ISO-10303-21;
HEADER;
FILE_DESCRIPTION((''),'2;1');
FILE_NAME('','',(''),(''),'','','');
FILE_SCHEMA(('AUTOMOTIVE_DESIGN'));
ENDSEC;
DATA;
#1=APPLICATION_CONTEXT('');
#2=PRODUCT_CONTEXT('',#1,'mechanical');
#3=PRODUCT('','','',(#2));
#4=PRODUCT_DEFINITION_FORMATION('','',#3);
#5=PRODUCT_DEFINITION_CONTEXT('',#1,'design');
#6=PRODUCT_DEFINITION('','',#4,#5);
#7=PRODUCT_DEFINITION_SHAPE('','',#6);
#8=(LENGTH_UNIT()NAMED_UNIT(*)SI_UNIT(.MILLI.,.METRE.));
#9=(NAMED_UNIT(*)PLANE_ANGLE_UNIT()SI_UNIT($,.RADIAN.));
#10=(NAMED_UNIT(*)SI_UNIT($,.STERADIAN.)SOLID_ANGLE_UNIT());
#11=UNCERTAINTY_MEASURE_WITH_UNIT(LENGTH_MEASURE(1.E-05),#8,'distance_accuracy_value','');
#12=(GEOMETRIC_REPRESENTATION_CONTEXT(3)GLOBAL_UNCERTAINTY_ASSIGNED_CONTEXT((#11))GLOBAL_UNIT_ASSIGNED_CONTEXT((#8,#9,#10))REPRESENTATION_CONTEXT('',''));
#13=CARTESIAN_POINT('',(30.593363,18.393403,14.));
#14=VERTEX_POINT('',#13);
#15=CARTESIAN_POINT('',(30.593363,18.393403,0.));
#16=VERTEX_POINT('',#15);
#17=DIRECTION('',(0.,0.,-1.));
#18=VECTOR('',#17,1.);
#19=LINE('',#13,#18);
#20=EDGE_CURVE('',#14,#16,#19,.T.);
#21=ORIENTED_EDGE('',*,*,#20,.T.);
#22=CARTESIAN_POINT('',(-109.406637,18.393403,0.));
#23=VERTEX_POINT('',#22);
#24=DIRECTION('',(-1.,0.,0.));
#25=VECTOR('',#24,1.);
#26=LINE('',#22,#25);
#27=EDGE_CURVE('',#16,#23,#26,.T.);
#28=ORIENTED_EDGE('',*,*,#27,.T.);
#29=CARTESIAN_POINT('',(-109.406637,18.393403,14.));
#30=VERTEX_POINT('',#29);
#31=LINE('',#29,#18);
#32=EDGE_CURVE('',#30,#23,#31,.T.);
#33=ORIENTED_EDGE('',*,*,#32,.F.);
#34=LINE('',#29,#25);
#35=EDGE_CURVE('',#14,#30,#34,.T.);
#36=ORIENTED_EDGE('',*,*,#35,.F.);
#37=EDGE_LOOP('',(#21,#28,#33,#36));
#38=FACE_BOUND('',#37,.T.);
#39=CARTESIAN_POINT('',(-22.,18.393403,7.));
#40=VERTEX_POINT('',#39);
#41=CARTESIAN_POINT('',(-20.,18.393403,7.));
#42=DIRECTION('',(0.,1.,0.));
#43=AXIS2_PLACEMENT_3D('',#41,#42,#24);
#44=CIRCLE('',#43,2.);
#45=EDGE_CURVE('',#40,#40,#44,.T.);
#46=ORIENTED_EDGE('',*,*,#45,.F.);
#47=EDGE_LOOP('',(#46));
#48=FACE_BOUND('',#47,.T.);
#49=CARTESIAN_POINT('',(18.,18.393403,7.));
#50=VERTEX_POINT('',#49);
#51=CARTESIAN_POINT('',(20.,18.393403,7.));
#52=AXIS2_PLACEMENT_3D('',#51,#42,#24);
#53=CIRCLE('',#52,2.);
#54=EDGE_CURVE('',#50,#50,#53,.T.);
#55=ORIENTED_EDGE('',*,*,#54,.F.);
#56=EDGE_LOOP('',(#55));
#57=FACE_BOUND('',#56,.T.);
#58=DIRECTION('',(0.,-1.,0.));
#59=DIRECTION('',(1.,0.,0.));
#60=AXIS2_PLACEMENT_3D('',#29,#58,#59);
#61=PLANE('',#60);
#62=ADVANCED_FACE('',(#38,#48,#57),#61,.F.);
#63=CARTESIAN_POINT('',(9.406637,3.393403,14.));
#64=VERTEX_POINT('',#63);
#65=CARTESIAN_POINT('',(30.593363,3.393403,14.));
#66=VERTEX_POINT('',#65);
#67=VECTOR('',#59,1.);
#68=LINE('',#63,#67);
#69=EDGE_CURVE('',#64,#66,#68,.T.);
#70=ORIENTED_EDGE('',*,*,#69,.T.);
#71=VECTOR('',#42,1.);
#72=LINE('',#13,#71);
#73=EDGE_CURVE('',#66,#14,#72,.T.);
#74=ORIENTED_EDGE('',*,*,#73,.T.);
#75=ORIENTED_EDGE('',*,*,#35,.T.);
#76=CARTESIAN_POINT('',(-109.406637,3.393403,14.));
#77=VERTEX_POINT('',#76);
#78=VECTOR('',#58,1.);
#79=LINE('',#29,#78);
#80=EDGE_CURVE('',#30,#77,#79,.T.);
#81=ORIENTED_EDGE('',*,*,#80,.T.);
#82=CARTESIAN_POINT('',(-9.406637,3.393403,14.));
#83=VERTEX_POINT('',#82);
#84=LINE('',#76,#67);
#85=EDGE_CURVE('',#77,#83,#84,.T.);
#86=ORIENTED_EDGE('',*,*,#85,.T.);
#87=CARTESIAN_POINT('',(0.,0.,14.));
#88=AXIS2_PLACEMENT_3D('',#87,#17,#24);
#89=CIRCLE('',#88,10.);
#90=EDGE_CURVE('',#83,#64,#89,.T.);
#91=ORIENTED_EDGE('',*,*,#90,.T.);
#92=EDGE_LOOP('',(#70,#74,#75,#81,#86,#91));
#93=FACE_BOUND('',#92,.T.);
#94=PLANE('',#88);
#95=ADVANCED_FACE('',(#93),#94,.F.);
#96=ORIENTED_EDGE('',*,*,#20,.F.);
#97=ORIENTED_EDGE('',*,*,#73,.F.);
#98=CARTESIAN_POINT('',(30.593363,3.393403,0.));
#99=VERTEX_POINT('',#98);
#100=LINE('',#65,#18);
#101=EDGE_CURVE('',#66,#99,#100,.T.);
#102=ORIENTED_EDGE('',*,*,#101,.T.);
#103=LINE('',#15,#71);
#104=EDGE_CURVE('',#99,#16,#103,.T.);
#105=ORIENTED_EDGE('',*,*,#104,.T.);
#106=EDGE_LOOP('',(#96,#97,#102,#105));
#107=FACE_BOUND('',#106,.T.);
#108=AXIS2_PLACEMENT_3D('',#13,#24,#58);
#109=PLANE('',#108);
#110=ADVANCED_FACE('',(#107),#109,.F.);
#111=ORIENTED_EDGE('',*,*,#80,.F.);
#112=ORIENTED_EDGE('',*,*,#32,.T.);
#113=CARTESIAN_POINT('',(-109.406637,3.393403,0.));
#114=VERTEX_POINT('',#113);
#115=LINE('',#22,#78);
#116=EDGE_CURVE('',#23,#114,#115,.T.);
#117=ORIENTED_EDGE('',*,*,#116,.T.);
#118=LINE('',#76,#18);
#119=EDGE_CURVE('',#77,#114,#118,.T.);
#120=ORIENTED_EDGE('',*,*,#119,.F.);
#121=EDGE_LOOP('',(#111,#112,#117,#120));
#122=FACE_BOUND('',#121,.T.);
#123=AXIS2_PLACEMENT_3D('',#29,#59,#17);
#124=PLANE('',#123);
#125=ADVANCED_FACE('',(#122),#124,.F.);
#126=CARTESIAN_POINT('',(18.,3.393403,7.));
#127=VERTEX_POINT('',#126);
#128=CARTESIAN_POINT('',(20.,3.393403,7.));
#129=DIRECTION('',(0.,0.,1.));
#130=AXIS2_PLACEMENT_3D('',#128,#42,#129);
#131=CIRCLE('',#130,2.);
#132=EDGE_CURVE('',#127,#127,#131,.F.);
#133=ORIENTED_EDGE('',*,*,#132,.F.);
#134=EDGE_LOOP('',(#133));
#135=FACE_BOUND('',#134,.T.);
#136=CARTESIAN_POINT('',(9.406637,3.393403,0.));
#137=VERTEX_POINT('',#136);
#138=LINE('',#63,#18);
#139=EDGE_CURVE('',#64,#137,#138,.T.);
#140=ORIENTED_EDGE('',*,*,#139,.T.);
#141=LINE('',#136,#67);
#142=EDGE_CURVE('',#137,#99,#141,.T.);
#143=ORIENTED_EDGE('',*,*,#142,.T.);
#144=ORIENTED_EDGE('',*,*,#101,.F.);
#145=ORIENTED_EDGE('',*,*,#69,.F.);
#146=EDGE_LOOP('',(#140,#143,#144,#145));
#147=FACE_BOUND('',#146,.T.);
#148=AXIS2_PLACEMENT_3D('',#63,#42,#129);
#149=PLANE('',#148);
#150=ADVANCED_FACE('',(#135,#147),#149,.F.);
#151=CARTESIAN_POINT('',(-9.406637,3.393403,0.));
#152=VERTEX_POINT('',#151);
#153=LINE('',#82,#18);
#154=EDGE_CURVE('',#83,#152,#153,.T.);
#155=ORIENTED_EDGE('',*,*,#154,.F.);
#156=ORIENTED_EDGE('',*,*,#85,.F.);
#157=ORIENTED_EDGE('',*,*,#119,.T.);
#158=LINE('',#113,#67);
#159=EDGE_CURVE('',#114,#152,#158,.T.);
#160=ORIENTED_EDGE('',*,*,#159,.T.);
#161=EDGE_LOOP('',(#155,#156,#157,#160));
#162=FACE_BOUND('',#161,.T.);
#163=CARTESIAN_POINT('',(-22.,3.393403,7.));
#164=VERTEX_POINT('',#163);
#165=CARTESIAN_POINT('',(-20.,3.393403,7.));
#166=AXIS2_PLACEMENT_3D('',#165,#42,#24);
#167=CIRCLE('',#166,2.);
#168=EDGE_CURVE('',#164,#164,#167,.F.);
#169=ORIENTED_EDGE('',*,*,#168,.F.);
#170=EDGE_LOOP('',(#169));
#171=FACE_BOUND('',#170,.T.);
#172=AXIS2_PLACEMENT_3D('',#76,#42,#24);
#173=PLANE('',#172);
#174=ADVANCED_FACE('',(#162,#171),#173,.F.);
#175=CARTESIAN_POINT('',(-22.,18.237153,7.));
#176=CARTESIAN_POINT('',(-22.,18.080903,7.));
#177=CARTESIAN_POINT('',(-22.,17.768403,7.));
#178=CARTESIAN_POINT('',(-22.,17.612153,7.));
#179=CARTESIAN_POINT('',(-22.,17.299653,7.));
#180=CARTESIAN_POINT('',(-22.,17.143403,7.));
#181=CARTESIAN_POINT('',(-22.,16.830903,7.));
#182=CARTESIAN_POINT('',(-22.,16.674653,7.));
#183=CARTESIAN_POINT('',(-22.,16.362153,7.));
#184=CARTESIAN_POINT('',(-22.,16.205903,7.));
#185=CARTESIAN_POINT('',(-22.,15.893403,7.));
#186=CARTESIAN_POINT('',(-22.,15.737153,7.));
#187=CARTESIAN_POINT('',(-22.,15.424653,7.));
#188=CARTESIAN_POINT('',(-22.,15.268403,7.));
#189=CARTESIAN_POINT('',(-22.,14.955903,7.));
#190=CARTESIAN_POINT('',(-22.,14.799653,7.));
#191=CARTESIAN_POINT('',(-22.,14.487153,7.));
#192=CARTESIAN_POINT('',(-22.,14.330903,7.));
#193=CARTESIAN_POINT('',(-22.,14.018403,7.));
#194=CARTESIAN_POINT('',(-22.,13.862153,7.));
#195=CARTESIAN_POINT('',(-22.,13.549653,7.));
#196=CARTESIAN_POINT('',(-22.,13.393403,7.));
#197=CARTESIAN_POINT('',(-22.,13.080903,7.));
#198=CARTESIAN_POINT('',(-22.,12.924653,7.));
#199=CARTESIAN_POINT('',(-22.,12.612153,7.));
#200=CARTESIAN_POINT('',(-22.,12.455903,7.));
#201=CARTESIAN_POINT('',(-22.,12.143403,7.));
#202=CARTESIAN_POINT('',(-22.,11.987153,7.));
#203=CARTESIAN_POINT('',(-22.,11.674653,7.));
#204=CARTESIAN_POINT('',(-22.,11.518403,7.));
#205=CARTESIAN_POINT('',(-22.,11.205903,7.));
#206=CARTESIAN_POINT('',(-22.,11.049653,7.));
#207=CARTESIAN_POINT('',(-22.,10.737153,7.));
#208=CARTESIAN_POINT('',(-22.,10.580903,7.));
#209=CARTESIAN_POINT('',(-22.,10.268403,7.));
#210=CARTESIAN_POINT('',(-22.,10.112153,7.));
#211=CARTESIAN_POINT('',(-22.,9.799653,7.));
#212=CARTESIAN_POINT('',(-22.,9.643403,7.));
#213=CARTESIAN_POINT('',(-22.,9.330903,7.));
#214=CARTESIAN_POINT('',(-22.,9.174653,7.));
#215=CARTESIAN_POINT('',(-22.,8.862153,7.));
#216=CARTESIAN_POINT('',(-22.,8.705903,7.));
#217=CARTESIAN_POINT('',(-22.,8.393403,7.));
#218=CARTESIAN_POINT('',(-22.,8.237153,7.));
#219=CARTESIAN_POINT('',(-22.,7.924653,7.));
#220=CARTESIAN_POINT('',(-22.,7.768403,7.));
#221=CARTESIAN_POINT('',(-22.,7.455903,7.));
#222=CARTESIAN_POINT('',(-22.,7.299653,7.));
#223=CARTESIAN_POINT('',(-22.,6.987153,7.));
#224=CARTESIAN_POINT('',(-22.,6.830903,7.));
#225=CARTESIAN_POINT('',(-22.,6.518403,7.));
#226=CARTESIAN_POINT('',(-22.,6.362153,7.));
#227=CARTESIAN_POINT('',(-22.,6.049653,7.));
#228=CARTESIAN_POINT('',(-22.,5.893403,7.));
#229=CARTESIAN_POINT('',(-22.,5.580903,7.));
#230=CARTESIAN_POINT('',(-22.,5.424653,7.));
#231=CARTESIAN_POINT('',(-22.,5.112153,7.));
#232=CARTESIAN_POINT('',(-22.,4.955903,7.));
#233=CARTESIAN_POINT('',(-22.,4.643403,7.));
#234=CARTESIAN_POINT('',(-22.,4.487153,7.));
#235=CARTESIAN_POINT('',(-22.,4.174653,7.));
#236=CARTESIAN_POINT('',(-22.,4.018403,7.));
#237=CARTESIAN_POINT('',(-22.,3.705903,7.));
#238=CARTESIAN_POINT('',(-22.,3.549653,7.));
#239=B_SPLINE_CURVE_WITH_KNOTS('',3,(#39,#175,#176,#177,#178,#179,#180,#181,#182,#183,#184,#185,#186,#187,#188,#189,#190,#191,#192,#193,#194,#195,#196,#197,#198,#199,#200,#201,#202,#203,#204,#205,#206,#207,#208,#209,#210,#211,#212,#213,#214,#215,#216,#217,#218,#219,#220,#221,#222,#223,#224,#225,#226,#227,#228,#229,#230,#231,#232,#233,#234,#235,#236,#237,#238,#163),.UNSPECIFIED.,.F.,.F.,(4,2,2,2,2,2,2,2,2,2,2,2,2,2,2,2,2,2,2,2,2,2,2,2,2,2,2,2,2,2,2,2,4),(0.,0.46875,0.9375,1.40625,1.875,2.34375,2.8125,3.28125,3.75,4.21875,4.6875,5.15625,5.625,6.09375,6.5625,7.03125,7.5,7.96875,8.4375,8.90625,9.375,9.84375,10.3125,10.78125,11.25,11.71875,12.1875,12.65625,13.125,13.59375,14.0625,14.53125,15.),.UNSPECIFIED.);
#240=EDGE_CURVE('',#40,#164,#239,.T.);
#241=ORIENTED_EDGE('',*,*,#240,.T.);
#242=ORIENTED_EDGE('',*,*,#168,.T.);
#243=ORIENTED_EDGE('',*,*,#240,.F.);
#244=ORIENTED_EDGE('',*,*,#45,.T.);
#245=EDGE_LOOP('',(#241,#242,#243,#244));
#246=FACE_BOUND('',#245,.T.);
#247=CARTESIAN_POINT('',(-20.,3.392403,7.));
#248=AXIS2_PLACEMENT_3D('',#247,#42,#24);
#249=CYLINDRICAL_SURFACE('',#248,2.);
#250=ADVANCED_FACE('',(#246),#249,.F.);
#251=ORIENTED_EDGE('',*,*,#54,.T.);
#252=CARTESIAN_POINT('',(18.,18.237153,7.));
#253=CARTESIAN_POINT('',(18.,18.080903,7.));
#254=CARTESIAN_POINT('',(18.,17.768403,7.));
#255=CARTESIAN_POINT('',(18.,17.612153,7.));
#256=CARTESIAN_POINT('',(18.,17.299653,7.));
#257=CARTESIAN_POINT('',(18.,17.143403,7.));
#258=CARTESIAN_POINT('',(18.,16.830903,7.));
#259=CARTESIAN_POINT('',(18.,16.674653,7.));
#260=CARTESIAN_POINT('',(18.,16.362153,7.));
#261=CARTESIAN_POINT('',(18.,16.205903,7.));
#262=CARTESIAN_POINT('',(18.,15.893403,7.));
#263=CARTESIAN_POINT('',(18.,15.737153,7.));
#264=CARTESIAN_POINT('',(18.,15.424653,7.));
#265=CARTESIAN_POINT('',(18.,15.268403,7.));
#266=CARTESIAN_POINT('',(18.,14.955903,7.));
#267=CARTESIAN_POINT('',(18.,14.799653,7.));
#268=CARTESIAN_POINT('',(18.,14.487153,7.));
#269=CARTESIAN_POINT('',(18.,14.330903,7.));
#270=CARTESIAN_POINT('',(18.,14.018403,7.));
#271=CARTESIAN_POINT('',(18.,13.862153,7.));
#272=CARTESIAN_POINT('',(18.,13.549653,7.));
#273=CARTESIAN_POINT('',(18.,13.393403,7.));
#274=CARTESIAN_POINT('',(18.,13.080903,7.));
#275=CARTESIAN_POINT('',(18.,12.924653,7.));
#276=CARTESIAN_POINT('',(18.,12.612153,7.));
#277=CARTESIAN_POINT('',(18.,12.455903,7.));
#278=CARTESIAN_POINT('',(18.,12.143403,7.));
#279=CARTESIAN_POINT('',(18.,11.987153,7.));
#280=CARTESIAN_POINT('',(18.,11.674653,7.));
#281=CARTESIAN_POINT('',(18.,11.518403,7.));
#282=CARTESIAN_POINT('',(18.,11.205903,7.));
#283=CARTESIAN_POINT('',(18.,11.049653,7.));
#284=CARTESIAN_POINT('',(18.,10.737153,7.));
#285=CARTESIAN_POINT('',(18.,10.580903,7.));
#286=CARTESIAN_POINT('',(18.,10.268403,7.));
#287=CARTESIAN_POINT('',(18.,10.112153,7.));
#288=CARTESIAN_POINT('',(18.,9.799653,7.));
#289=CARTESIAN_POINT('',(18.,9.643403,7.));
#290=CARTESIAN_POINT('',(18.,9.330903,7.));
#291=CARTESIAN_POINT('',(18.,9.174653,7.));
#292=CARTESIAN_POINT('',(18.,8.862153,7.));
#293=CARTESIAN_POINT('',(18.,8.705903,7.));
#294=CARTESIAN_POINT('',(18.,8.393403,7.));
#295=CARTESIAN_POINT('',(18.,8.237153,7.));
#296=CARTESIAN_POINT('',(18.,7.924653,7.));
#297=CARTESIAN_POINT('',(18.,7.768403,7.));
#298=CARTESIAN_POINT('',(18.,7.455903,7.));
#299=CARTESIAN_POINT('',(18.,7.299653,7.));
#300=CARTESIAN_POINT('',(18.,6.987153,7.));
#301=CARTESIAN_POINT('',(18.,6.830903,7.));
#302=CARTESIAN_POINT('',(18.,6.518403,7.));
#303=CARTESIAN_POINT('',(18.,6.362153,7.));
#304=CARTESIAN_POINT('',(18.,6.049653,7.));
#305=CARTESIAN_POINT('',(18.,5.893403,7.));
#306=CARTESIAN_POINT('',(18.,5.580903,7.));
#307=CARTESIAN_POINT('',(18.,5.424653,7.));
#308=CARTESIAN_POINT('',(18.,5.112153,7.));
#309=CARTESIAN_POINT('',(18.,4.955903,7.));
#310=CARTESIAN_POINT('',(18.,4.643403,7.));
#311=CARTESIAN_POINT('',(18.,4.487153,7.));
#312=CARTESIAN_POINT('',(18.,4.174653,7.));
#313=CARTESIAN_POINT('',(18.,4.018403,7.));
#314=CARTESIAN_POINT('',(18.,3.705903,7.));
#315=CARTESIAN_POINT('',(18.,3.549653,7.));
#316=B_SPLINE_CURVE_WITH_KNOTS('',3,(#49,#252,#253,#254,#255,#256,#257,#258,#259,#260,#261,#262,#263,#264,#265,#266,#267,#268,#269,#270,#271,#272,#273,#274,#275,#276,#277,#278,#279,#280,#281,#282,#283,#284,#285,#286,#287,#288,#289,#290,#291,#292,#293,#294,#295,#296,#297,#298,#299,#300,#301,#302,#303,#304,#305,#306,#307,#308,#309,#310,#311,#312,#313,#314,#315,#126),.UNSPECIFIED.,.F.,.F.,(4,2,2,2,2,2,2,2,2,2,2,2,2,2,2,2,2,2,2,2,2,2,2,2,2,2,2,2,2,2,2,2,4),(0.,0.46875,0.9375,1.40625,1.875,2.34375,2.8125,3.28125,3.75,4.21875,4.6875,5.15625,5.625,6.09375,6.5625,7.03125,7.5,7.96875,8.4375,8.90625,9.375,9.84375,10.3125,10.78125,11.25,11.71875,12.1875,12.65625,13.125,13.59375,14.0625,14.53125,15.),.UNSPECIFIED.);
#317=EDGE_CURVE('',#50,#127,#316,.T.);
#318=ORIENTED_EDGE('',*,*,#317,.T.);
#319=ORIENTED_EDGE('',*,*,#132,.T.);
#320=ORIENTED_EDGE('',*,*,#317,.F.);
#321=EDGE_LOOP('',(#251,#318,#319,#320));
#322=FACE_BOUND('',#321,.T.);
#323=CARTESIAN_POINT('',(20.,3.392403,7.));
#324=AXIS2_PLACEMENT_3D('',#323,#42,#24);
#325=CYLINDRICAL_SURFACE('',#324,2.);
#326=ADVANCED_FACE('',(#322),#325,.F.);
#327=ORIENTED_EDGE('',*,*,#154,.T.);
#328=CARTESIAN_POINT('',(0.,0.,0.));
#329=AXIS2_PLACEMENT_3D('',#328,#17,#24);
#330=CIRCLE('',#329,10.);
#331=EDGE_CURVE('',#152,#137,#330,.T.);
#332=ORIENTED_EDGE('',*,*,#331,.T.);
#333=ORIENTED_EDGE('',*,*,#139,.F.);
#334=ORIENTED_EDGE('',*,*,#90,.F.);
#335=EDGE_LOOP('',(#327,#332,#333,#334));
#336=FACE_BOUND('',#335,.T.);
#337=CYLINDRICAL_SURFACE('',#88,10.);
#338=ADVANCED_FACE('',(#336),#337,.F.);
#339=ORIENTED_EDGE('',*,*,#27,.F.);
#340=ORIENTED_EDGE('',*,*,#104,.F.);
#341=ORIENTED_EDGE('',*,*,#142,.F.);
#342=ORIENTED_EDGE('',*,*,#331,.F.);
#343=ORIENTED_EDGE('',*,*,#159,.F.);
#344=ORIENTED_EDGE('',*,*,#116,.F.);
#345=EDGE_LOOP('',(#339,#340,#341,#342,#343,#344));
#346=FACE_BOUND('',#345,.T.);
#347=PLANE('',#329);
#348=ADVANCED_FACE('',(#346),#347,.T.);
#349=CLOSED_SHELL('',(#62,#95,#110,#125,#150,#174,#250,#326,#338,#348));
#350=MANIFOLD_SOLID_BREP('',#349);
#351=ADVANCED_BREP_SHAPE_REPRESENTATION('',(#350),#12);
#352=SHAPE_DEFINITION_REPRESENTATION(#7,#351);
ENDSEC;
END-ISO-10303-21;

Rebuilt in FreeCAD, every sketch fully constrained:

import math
import FreeCAD as App
import Part
import Sketcher
Q = App.Units.Quantity

doc = App.newDocument("Part")
body = doc.addObject("PartDesign::Body", "Body")

# Sketch on XY plane
sketch1 = body.newObject("Sketcher::SketchObject", "Sketch")
sketch1.AttachmentSupport = (doc.getObject("XY_Plane"), [""])
sketch1.MapMode = "FlatFace"
sketch1.addGeometry([
    Part.LineSegment(App.Vector(9.406637, 3.393403, 0), App.Vector(30.593363, 3.393403, 0)),  # 0
    Part.LineSegment(App.Vector(30.593363, 3.393403, 0), App.Vector(30.593363, 18.393403, 0)),  # 1
    Part.LineSegment(App.Vector(30.593363, 18.393403, 0), App.Vector(-109.406637, 18.393403, 0)),  # 2
    Part.LineSegment(App.Vector(-109.406637, 18.393403, 0), App.Vector(-109.406637, 3.393403, 0)),  # 3
    Part.LineSegment(App.Vector(-109.406637, 3.393403, 0), App.Vector(-9.406637, 3.393403, 0)),  # 4
    Part.ArcOfCircle(Part.Circle(App.Vector(0, 0, 0), App.Vector(0, 0, 1), 10), math.radians(19.836687), math.radians(160.163313)),  # 5
], False)
sketch1.addConstraint([
    Sketcher.Constraint("Coincident", 0, 2, 1, 1),
    Sketcher.Constraint("Coincident", 1, 2, 2, 1),
    Sketcher.Constraint("Coincident", 2, 2, 3, 1),
    Sketcher.Constraint("Coincident", 3, 2, 4, 1),
    Sketcher.Constraint("Coincident", 4, 2, 5, 2),
    Sketcher.Constraint("Coincident", 5, 1, 0, 1),
    Sketcher.Constraint("Horizontal", 0),
    Sketcher.Constraint("Vertical", 1),
    Sketcher.Constraint("Horizontal", 2),
    Sketcher.Constraint("Vertical", 3),
    Sketcher.Constraint("Horizontal", 4),
    Sketcher.Constraint("Coincident", 5, 3, -1, 1),
    Sketcher.Constraint("Horizontal", 0, 2, 3, 2),
    Sketcher.Constraint("Radius", 5, Q("10 mm")),
    Sketcher.Constraint("DistanceX", 2, 2, 2, 1, Q("140 mm")),
    Sketcher.Constraint("DistanceX", 4, 1, 4, 2, Q("100 mm")),
    Sketcher.Constraint("DistanceY", 1, 1, 1, 2, Q("15 mm")),
    Sketcher.Constraint("DistanceX", 0, 1, 0, 2, Q("21.186726 mm")),
])
pad1 = body.newObject("PartDesign::Pad", "Pad")
pad1.Profile = sketch1
pad1.Length = 14

# Sketch on XZ plane
sketch2 = body.newObject("Sketcher::SketchObject", "Sketch001")
sketch2.AttachmentSupport = (doc.getObject("XZ_Plane"), [""])
sketch2.MapMode = "FlatFace"
sketch2.AttachmentOffset = App.Placement(App.Vector(0, 0, -18.393403), App.Rotation())
sketch2.addGeometry(Part.Circle(App.Vector(20, 7, 0), App.Vector(0, 0, 1), 2), False)
sketch2.addConstraint([
    Sketcher.Constraint("Diameter", 0, Q("4 mm")),
    Sketcher.Constraint("DistanceX", -1, 1, 0, 3, Q("20 mm")),
    Sketcher.Constraint("DistanceY", -1, 1, 0, 3, Q("7 mm")),
])
pocket1 = body.newObject("PartDesign::Pocket", "Pocket")
pocket1.Profile = sketch2
pocket1.Type = "UpToFirst"
pocket1.Reversed = True

# Sketch on XZ plane
sketch3 = body.newObject("Sketcher::SketchObject", "Sketch002")
sketch3.AttachmentSupport = (doc.getObject("XZ_Plane"), [""])
sketch3.MapMode = "FlatFace"
sketch3.AttachmentOffset = App.Placement(App.Vector(0, 0, -18.393403), App.Rotation())
sketch3.addGeometry(Part.Circle(App.Vector(-20, 7, 0), App.Vector(0, 0, 1), 2), False)
sketch3.addConstraint([
    Sketcher.Constraint("Diameter", 0, Q("4 mm")),
    Sketcher.Constraint("DistanceX", 0, 3, -1, 1, Q("20 mm")),
    Sketcher.Constraint("DistanceY", -1, 1, 0, 3, Q("7 mm")),
])
pocket2 = body.newObject("PartDesign::Pocket", "Pocket001")
pocket2.Profile = sketch3
pocket2.Type = "UpToFirst"
pocket2.Reversed = True

doc.recompute()
